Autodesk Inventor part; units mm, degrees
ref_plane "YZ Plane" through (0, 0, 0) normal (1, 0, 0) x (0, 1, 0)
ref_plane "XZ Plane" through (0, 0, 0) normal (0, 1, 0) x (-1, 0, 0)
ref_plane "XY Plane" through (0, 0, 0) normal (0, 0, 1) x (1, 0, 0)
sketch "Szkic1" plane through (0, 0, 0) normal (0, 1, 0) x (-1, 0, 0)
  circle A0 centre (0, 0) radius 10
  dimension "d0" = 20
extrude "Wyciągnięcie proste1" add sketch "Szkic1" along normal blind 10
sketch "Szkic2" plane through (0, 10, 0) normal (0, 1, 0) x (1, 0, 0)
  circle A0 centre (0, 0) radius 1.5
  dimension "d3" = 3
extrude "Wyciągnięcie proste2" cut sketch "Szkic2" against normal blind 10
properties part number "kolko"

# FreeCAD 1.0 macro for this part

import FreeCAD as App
import Part
import Sketcher
from FreeCAD import Vector
Q = App.Units.Quantity

doc = App.newDocument("Part")
body = doc.addObject("PartDesign::Body", "Body")

# Sketch on XZ plane
sketch1 = body.newObject("Sketcher::SketchObject", "Sketch")
sketch1.AttachmentSupport = (doc.getObject("XZ_Plane"), [""])
sketch1.MapMode = "FlatFace"
sketch1.addGeometry(Part.Circle(Vector(0, 0, 0), Vector(0, 0, 1), 10), False)
sketch1.addConstraint([
    Sketcher.Constraint("Coincident", 0, 3, -1, 1),
    Sketcher.Constraint("Diameter", 0, Q("20 mm")),
])
pad1 = body.newObject("PartDesign::Pad", "Pad")
pad1.Profile = sketch1
pad1.Length = 10
pad1.Reversed = True

# Sketch on XZ plane
sketch2 = body.newObject("Sketcher::SketchObject", "Sketch001")
sketch2.AttachmentSupport = (doc.getObject("XZ_Plane"), [""])
sketch2.MapMode = "FlatFace"
sketch2.AttachmentOffset = App.Placement(Vector(0, 0, -10), App.Rotation())
sketch2.addGeometry(Part.Circle(Vector(0, 0, 0), Vector(0, 0, 1), 1.5), False)
sketch2.addConstraint([
    Sketcher.Constraint("Coincident", 0, 3, -1, 1),
    Sketcher.Constraint("Diameter", 0, Q("3 mm")),
])
pocket1 = body.newObject("PartDesign::Pocket", "Pocket")
pocket1.Profile = sketch2
pocket1.Length = 10
pocket1.Reversed = True

doc.recompute()
